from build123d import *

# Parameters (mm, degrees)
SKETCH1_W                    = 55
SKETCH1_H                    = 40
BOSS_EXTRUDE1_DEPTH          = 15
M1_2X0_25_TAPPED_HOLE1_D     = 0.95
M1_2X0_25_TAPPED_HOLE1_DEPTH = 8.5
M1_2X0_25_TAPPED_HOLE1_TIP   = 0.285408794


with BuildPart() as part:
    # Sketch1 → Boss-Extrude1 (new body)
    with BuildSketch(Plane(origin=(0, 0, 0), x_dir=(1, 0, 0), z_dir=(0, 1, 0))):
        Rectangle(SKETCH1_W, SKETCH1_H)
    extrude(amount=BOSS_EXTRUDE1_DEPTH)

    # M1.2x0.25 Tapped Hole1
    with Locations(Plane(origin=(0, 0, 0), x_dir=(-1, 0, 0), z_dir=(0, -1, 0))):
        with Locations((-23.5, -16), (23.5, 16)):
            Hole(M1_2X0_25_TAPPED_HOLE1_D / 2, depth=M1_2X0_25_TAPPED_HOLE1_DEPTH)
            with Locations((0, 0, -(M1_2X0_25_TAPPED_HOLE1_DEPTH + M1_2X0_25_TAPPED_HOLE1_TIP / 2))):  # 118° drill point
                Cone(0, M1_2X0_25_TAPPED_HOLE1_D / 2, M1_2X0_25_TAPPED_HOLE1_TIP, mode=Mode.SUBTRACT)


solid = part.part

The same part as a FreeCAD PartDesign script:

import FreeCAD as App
import Part
import Sketcher
Q = App.Units.Quantity

doc = App.newDocument("Part")
body = doc.addObject("PartDesign::Body", "Body")

# Sketch on XZ plane
sketch1 = doc.addObject("Sketcher::SketchObject", "Sketch")
body.addObject(sketch1)
sketch1.AttachmentSupport = (doc.XZ_Plane, [""])
sketch1.MapMode = "FlatFace"
sketch1.addGeometry([
    Part.LineSegment(App.Vector(-28, -20, 0), App.Vector(-28, 20, 0)),
    Part.LineSegment(App.Vector(-28, 20, 0), App.Vector(28, 20, 0)),
    Part.LineSegment(App.Vector(28, 20, 0), App.Vector(28, -20, 0)),
    Part.LineSegment(App.Vector(28, -20, 0), App.Vector(-28, -20, 0)),
], False)
sketch1.addConstraint([
    Sketcher.Constraint("Coincident", 0, 2, 1, 1),
    Sketcher.Constraint("Coincident", 1, 2, 2, 1),
    Sketcher.Constraint("Coincident", 2, 2, 3, 1),
    Sketcher.Constraint("Coincident", 3, 2, 0, 1),
    Sketcher.Constraint("Vertical", 0),
    Sketcher.Constraint("Horizontal", 1),
    Sketcher.Constraint("Vertical", 2),
    Sketcher.Constraint("Horizontal", 3),
    Sketcher.Constraint("Symmetric", 0, 2, 2, 2, -1, 1),
    Sketcher.Constraint("DistanceX", 1, 1, 1, 2, Q("55 mm")),
    Sketcher.Constraint("DistanceY", 0, 1, 0, 2, Q("40 mm")),
])
pad1 = doc.addObject("PartDesign::Pad", "Pad")
body.addObject(pad1)
pad1.Profile = sketch1
pad1.Length = 15
pad1.Reversed = True

# Sketch on XZ plane
sketch2 = doc.addObject("Sketcher::SketchObject", "Sketch001")
body.addObject(sketch2)
sketch2.AttachmentSupport = (doc.XZ_Plane, [""])
sketch2.MapMode = "FlatFace"
sketch2.addGeometry([
    Part.Circle(App.Vector(23.5, 16, 0), App.Vector(0, 0, 1), 0.47),
    Part.Circle(App.Vector(-23.5, -16, 0), App.Vector(0, 0, 1), 0.47),
], False)
sketch2.addConstraint([
    Sketcher.Constraint("Equal", 0, 1),
    Sketcher.Constraint("Symmetric", 0, 3, 1, 3, -1, 1),
    Sketcher.Constraint("Diameter", 0, Q("0.95 mm")),
    Sketcher.Constraint("DistanceY", -1, 1, 0, 3, Q("16 mm")),
    Sketcher.Constraint("DistanceX", 1, 3, 0, 3, Q("47 mm")),
])
doc.recompute()
hole = doc.addObject("PartDesign::Hole", "Hole")
body.addObject(hole)
hole.Profile = sketch2
hole.ThreadType = "None"
hole.Diameter = 0.95
hole.DepthType = "Dimension"
hole.Depth = 8.5
hole.DrillPoint = "Angled"
hole.DrillPointAngle = 118

doc.recompute()
